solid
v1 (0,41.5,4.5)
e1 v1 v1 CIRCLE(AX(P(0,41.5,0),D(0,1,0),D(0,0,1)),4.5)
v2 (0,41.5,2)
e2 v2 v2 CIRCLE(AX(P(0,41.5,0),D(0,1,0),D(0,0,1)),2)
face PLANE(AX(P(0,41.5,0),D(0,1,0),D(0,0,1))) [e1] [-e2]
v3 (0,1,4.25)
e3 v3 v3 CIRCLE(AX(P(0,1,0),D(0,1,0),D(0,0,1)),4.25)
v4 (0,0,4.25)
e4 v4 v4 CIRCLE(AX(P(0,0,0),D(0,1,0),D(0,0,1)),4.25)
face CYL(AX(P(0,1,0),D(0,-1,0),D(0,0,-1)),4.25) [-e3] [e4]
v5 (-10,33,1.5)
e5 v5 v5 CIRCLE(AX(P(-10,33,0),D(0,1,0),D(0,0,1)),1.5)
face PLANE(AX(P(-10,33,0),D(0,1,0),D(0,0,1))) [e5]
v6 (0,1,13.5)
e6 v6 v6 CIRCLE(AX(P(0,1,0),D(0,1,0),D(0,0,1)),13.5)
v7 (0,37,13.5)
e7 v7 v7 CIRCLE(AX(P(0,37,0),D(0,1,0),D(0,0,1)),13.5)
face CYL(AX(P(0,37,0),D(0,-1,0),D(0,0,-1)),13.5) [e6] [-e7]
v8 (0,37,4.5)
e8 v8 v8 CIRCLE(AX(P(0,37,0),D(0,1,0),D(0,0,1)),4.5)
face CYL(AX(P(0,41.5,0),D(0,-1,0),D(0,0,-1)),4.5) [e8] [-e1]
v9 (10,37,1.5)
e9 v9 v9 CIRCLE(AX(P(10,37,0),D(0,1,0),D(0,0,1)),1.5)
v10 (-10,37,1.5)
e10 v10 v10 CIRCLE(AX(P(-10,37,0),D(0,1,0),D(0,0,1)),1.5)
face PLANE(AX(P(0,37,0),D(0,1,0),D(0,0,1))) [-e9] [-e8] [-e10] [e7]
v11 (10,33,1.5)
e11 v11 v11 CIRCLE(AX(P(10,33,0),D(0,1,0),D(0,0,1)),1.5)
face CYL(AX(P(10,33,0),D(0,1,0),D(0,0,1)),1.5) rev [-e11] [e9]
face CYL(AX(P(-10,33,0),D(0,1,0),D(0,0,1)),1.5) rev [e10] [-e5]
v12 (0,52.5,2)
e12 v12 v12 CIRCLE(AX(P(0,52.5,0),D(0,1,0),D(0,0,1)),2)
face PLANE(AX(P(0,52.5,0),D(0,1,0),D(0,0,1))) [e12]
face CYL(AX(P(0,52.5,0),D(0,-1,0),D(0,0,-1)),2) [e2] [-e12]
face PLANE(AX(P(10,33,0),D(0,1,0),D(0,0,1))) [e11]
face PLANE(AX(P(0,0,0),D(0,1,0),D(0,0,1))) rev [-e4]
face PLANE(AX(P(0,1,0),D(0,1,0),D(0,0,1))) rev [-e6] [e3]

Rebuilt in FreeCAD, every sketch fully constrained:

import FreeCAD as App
import Part
import Sketcher
from FreeCAD import Vector

doc = App.newDocument("Part")
params = doc.addObject("Spreadsheet::Sheet", "Params")
for row, (alias, value) in enumerate([
    ("sketch1_diameter", "8.5 mm"),
    ("pad1_length", "1 mm"),
    ("sketch2_diameter", "27 mm"),
    ("pad2_length", "36 mm"),
    ("sketch3_diameter", "9 mm"),
    ("pad3_length", "4.5 mm"),
    ("sketch4_diameter", "4 mm"),
    ("pad4_length", "11 mm"),
    ("sketch5_diameter", "3 mm"),
    ("pocket1_length", "4 mm"),
], start=1):
    params.set(f"A{row}", alias)
    params.set(f"B{row}", "=" + value)
    params.setAlias(f"B{row}", alias)

body = doc.addObject("PartDesign::Body", "Body")

# Sketch on XZ plane
sketch1 = body.newObject("Sketcher::SketchObject", "Sketch")
sketch1.AttachmentSupport = (doc.getObject("XZ_Plane"), [""])
sketch1.MapMode = "FlatFace"
sketch1.addGeometry(Part.Circle(Vector(0, 0, 0), Vector(0, 0, 1), 4.2), False)
sketch1.addConstraint([
    Sketcher.Constraint("Coincident", 0, 3, -1, 1),
    Sketcher.Constraint("Diameter", 0, 8.5),
])
sketch1.setExpression("Constraints[1]", "Params.sketch1_diameter")
pad1 = body.newObject("PartDesign::Pad", "Pad")
pad1.Profile = sketch1
pad1.setExpression("Length", "Params.pad1_length")
pad1.Reversed = True

# Sketch on XZ plane
sketch2 = body.newObject("Sketcher::SketchObject", "Sketch001")
sketch2.AttachmentSupport = (doc.getObject("XZ_Plane"), [""])
sketch2.MapMode = "FlatFace"
sketch2.AttachmentOffset = App.Placement(Vector(0, 0, -1), App.Rotation())
sketch2.addGeometry(Part.Circle(Vector(0, 0, 0), Vector(0, 0, 1), 14), False)
sketch2.addConstraint([
    Sketcher.Constraint("Coincident", 0, 3, -1, 1),
    Sketcher.Constraint("Diameter", 0, 27.0),
])
sketch2.setExpression("Constraints[1]", "Params.sketch2_diameter")
pad2 = body.newObject("PartDesign::Pad", "Pad001")
pad2.Profile = sketch2
pad2.setExpression("Length", "Params.pad2_length")
pad2.Reversed = True

# Sketch on XZ plane
sketch3 = body.newObject("Sketcher::SketchObject", "Sketch002")
sketch3.AttachmentSupport = (doc.getObject("XZ_Plane"), [""])
sketch3.MapMode = "FlatFace"
sketch3.AttachmentOffset = App.Placement(Vector(0, 0, -37), App.Rotation())
sketch3.addGeometry(Part.Circle(Vector(0, 0, 0), Vector(0, 0, 1), 4.5), False)
sketch3.addConstraint([
    Sketcher.Constraint("Coincident", 0, 3, -1, 1),
    Sketcher.Constraint("Diameter", 0, 9.0),
])
sketch3.setExpression("Constraints[1]", "Params.sketch3_diameter")
pad3 = body.newObject("PartDesign::Pad", "Pad002")
pad3.Profile = sketch3
pad3.setExpression("Length", "Params.pad3_length")
pad3.Reversed = True

# Sketch on XZ plane
sketch4 = body.newObject("Sketcher::SketchObject", "Sketch003")
sketch4.AttachmentSupport = (doc.getObject("XZ_Plane"), [""])
sketch4.MapMode = "FlatFace"
sketch4.AttachmentOffset = App.Placement(Vector(0, 0, -41.5), App.Rotation())
sketch4.addGeometry(Part.Circle(Vector(0, 0, 0), Vector(0, 0, 1), 2), False)
sketch4.addConstraint([
    Sketcher.Constraint("Coincident", 0, 3, -1, 1),
    Sketcher.Constraint("Diameter", 0, 4.0),
])
sketch4.setExpression("Constraints[1]", "Params.sketch4_diameter")
pad4 = body.newObject("PartDesign::Pad", "Pad003")
pad4.Profile = sketch4
pad4.setExpression("Length", "Params.pad4_length")
pad4.Reversed = True

# Sketch on XZ plane
sketch5 = body.newObject("Sketcher::SketchObject", "Sketch004")
sketch5.AttachmentSupport = (doc.getObject("XZ_Plane"), [""])
sketch5.MapMode = "FlatFace"
sketch5.AttachmentOffset = App.Placement(Vector(0, 0, -37), App.Rotation())
sketch5.addGeometry([
    Part.Circle(Vector(10, 0, 0), Vector(0, 0, 1), 1.5),
    Part.Circle(Vector(-10, 0, 0), Vector(0, 0, 1), 1.5),
], False)
sketch5.addConstraint([
    Sketcher.Constraint("Equal", 0, 1),
    Sketcher.Constraint("Symmetric", 0, 3, 1, 3, -1, 1),
    Sketcher.Constraint("PointOnObject", 0, 3, -1),
    Sketcher.Constraint("Diameter", 0, 3.0),
    Sketcher.Constraint("DistanceX", -1, 1, 0, 3, 10.0),
])
sketch5.setExpression("Constraints[3]", "Params.sketch5_diameter")
pocket1 = body.newObject("PartDesign::Pocket", "Pocket")
pocket1.Profile = sketch5
pocket1.setExpression("Length", "Params.pocket1_length")
pocket1.Reversed = True

doc.recompute()
